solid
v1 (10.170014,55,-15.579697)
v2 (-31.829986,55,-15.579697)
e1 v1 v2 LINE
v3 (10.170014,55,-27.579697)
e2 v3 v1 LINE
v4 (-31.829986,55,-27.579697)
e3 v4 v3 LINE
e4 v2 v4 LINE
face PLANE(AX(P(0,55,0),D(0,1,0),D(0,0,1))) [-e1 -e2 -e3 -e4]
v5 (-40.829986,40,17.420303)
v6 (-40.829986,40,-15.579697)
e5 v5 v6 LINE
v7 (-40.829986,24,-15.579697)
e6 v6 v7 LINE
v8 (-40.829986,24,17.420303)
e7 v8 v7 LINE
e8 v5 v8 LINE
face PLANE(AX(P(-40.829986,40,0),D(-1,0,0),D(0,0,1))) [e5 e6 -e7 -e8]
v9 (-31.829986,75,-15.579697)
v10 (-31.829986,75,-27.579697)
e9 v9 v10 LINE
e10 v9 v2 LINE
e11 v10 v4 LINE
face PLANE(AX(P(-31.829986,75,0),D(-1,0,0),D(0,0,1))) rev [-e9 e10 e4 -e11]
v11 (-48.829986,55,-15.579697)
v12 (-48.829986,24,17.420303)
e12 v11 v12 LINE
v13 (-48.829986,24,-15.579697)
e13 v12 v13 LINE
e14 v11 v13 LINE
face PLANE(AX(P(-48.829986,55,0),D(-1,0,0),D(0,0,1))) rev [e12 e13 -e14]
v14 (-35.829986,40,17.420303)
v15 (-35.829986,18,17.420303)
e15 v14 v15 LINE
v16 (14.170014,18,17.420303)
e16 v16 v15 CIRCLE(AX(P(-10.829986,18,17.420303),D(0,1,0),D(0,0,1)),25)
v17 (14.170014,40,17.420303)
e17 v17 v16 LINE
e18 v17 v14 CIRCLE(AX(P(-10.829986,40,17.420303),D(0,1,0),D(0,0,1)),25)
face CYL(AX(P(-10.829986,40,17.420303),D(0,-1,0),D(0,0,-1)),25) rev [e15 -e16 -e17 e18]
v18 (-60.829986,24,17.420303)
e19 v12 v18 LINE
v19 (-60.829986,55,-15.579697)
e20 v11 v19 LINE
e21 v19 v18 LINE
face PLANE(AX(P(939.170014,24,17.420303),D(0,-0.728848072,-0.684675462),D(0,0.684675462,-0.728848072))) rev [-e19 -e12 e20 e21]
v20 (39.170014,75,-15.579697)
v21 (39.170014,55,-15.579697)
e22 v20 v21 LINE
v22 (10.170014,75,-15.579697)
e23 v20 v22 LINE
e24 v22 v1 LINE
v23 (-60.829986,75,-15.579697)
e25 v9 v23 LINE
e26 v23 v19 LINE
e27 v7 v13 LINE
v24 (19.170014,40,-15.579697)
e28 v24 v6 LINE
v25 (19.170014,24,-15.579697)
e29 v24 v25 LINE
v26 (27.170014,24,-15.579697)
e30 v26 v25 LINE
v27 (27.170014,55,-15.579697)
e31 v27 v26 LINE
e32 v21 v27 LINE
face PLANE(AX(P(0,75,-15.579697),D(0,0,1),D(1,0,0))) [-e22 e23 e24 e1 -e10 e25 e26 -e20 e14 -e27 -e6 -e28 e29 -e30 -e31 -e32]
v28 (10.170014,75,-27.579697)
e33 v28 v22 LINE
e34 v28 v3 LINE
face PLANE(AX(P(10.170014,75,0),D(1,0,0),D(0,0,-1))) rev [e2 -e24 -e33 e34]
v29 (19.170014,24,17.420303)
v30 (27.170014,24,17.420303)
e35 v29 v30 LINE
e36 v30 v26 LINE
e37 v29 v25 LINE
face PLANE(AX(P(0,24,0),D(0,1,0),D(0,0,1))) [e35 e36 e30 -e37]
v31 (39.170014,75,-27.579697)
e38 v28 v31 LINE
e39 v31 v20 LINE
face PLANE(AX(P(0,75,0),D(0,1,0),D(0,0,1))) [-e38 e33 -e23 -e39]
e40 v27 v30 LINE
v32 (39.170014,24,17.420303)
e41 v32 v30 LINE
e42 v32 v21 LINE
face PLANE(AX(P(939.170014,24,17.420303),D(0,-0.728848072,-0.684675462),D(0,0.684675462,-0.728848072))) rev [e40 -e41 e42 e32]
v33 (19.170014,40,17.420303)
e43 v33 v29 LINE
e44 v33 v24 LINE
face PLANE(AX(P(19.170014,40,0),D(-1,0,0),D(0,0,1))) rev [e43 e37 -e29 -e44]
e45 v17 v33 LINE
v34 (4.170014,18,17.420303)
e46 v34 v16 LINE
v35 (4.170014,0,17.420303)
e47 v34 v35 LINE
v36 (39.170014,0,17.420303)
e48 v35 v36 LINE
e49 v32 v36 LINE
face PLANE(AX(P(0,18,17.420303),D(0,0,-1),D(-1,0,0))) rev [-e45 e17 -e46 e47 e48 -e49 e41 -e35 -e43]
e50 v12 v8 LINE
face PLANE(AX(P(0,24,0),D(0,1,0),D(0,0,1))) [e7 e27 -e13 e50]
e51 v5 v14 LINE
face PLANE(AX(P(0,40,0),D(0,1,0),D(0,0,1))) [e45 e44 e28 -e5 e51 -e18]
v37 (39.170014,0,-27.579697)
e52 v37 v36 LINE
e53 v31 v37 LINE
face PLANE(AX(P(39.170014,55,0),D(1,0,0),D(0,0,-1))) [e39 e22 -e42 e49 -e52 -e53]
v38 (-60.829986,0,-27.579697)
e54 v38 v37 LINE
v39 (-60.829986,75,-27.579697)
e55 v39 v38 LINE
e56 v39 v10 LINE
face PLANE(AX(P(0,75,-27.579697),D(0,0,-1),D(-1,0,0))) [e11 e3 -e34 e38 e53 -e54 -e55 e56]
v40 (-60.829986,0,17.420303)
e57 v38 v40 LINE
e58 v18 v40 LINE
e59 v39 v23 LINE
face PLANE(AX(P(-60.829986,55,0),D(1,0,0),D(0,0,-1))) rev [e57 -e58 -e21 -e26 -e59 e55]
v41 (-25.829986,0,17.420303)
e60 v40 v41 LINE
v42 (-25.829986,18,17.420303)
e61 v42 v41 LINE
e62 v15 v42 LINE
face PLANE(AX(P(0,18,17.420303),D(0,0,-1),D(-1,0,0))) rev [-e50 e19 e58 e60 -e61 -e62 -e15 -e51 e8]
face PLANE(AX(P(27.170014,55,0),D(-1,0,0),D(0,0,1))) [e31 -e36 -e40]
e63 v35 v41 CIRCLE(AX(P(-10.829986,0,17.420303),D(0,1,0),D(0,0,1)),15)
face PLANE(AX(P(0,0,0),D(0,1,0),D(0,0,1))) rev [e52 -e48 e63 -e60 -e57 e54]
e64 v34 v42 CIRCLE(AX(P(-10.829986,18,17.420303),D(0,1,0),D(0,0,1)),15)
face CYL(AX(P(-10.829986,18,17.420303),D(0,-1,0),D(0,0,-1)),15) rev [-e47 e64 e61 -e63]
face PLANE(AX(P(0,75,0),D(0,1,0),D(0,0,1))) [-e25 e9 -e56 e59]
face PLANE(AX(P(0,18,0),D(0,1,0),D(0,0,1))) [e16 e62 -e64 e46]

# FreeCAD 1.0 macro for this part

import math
import FreeCAD as App
import Part
import Sketcher

doc = App.newDocument("Part")
body = doc.addObject("PartDesign::Body", "Body")

sketch1 = doc.addObject("Sketcher::SketchObject", "Sketch")
body.addObject(sketch1)
sketch1.AttachmentSupport = (doc.XZ_Plane, [""])
sketch1.MapMode = "FlatFace"
sketch1.addGeometry([
    Part.ArcOfCircle(Part.Circle(App.Vector(-10.829986, 17.420303, 0), App.Vector(0, 0, 1), 25), math.radians(180), math.radians(360)),
    Part.LineSegment(App.Vector(-35.829986, 17.420303, 0), App.Vector(-25.829986, 17.420303, 0)),
    Part.ArcOfCircle(Part.Circle(App.Vector(-10.829986, 17.420303, 0), App.Vector(0, 0, 1), 15), math.radians(180), math.radians(360)),
    Part.LineSegment(App.Vector(4.170014, 17.420303, 0), App.Vector(14.170014, 17.420303, 0)),
], False)
sketch1.addConstraint([
    Sketcher.Constraint("Coincident", 0, 1, 1, 1),
    Sketcher.Constraint("Coincident", 1, 2, 2, 1),
    Sketcher.Constraint("Coincident", 2, 2, 3, 1),
    Sketcher.Constraint("Coincident", 3, 2, 0, 2),
    Sketcher.Constraint("Horizontal", 1),
    Sketcher.Constraint("Horizontal", 3),
    Sketcher.Constraint("Coincident", 2, 3, 0, 3),
    Sketcher.Constraint("Horizontal", 2, 3, 0, 1),
    Sketcher.Constraint("Horizontal", 1, 2, 2, 2),
    Sketcher.Constraint("Radius", 0, 25.0),
    Sketcher.Constraint("Radius", 2, 15.0),
    Sketcher.Constraint("DistanceX", 0, 3, -1, 1, 10.829986),
    Sketcher.Constraint("DistanceY", -1, 1, 0, 3, 17.420303),
])
pad1 = doc.addObject("PartDesign::Pad", "Pad")
body.addObject(pad1)
pad1.Profile = sketch1
pad1.Length = 18
pad1.Reversed = True
body2 = doc.addObject("PartDesign::Body", "Body001")

sketch2 = doc.addObject("Sketcher::SketchObject", "Sketch001")
body2.addObject(sketch2)
sketch2.AttachmentSupport = (doc.getObject("XZ_Plane001"), [""])
sketch2.MapMode = "FlatFace"
sketch2.addGeometry([
    Part.LineSegment(App.Vector(-48.829986, -15.579697, 0), App.Vector(-48.829986, 17.420303, 0)),
    Part.LineSegment(App.Vector(-48.829986, 17.420303, 0), App.Vector(-40.829986, 17.420303, 0)),
    Part.LineSegment(App.Vector(-40.829986, 17.420303, 0), App.Vector(-40.829986, -15.579697, 0)),
    Part.LineSegment(App.Vector(-40.829986, -15.579697, 0), App.Vector(-48.829986, -15.579697, 0)),
], False)
sketch2.addConstraint([
    Sketcher.Constraint("Coincident", 0, 2, 1, 1),
    Sketcher.Constraint("Coincident", 1, 2, 2, 1),
    Sketcher.Constraint("Coincident", 2, 2, 3, 1),
    Sketcher.Constraint("Coincident", 3, 2, 0, 1),
    Sketcher.Constraint("Vertical", 0),
    Sketcher.Constraint("Horizontal", 1),
    Sketcher.Constraint("Vertical", 2),
    Sketcher.Constraint("Horizontal", 3),
    Sketcher.Constraint("DistanceX", 1, 1, 1, 2, 8.0),
    Sketcher.Constraint("DistanceY", 0, 1, 0, 2, 33.0),
    Sketcher.Constraint("DistanceX", 0, 2, -1, 1, 48.829986),
    Sketcher.Constraint("DistanceY", -1, 1, 0, 2, 17.420303),
])
pad2 = doc.addObject("PartDesign::Pad", "Pad001")
body2.addObject(pad2)
pad2.Profile = sketch2
pad2.Length = 24
pad2.Reversed = True
body3 = doc.addObject("PartDesign::Body", "Body002")

sketch3 = doc.addObject("Sketcher::SketchObject", "Sketch002")
body3.addObject(sketch3)
sketch3.AttachmentSupport = (doc.getObject("XZ_Plane002"), [""])
sketch3.MapMode = "FlatFace"
sketch3.addGeometry([
    Part.LineSegment(App.Vector(19.170014, -15.579697, 0), App.Vector(19.170014, 17.420303, 0)),
    Part.LineSegment(App.Vector(19.170014, 17.420303, 0), App.Vector(27.170014, 17.420303, 0)),
    Part.LineSegment(App.Vector(27.170014, 17.420303, 0), App.Vector(27.170014, -15.579697, 0)),
    Part.LineSegment(App.Vector(27.170014, -15.579697, 0), App.Vector(19.170014, -15.579697, 0)),
], False)
sketch3.addConstraint([
    Sketcher.Constraint("Coincident", 0, 2, 1, 1),
    Sketcher.Constraint("Coincident", 1, 2, 2, 1),
    Sketcher.Constraint("Coincident", 2, 2, 3, 1),
    Sketcher.Constraint("Coincident", 3, 2, 0, 1),
    Sketcher.Constraint("Vertical", 0),
    Sketcher.Constraint("Horizontal", 1),
    Sketcher.Constraint("Vertical", 2),
    Sketcher.Constraint("Horizontal", 3),
    Sketcher.Constraint("DistanceX", 1, 1, 1, 2, 8.0),
    Sketcher.Constraint("DistanceY", 0, 1, 0, 2, 33.0),
    Sketcher.Constraint("DistanceX", -1, 1, 0, 2, 19.170014),
    Sketcher.Constraint("DistanceY", -1, 1, 0, 2, 17.420303),
])
pad3 = doc.addObject("PartDesign::Pad", "Pad002")
body3.addObject(pad3)
pad3.Profile = sketch3
pad3.Length = 24
pad3.Reversed = True
body2.AllowCompound = True
doc.recompute()

boolean = doc.addObject("PartDesign::Boolean", "Boolean")
body2.addObject(boolean)
boolean.Type = "Fuse"
boolean.addObjects([body3])

sketch4 = doc.addObject("Sketcher::SketchObject", "Sketch003")
body2.addObject(sketch4)
sketch4.AttachmentSupport = (doc.getObject("XZ_Plane001"), [""])
sketch4.MapMode = "FlatFace"
sketch4.addGeometry([
    Part.LineSegment(App.Vector(-60.829986, -15.579697, 0), App.Vector(-60.829986, 17.420303, 0)),
    Part.LineSegment(App.Vector(-60.829986, 17.420303, 0), App.Vector(-48.829986, 17.420303, 0)),
    Part.LineSegment(App.Vector(-48.829986, 17.420303, 0), App.Vector(-48.829986, -15.579697, 0)),
    Part.LineSegment(App.Vector(-48.829986, -15.579697, 0), App.Vector(-60.829986, -15.579697, 0)),
    Part.LineSegment(App.Vector(27.170014, -15.579697, 0), App.Vector(27.170014, 17.420303, 0)),
    Part.LineSegment(App.Vector(27.170014, 17.420303, 0), App.Vector(39.170014, 17.420303, 0)),
    Part.LineSegment(App.Vector(39.170014, 17.420303, 0), App.Vector(39.170014, -15.579697, 0)),
    Part.LineSegment(App.Vector(39.170014, -15.579697, 0), App.Vector(27.170014, -15.579697, 0)),
], False)
sketch4.addConstraint([
    Sketcher.Constraint("Coincident", 0, 2, 1, 1),
    Sketcher.Constraint("Coincident", 1, 2, 2, 1),
    Sketcher.Constraint("Coincident", 2, 2, 3, 1),
    Sketcher.Constraint("Coincident", 3, 2, 0, 1),
    Sketcher.Constraint("Coincident", 4, 2, 5, 1),
    Sketcher.Constraint("Coincident", 5, 2, 6, 1),
    Sketcher.Constraint("Coincident", 6, 2, 7, 1),
    Sketcher.Constraint("Coincident", 7, 2, 4, 1),
    Sketcher.Constraint("Vertical", 0),
    Sketcher.Constraint("Horizontal", 1),
    Sketcher.Constraint("Vertical", 2),
    Sketcher.Constraint("Horizontal", 3),
    Sketcher.Constraint("Vertical", 4),
    Sketcher.Constraint("Horizontal", 5),
    Sketcher.Constraint("Vertical", 6),
    Sketcher.Constraint("Horizontal", 7),
    Sketcher.Constraint("Horizontal", 1, 2, 4, 2),
    Sketcher.Constraint("Horizontal", 3, 2, 6, 2),
    Sketcher.Constraint("Equal", 3, 5),
    Sketcher.Constraint("DistanceX", 1, 1, 1, 2, 12.0),
    Sketcher.Constraint("DistanceY", 0, 1, 0, 2, 33.0),
    Sketcher.Constraint("DistanceX", 1, 2, 4, 2, 76.0),
    Sketcher.Constraint("DistanceX", 0, 2, -1, 1, 60.829986),
    Sketcher.Constraint("DistanceY", -1, 1, 0, 2, 17.420303),
])
pad4 = doc.addObject("PartDesign::Pad", "Pad003")
body2.addObject(pad4)
pad4.Profile = sketch4
pad4.Length = 55
pad4.Reversed = True

sketch5 = doc.addObject("Sketcher::SketchObject", "Sketch004")
body2.addObject(sketch5)
sketch5.AttachmentSupport = (doc.getObject("YZ_Plane001"), [""])
sketch5.MapMode = "FlatFace"
sketch5.AttachmentOffset = App.Placement(App.Vector(0, 0, -60.829986), App.Rotation())
sketch5.addGeometry([
    Part.LineSegment(App.Vector(24, 17.420303, 0), App.Vector(55, 17.420303, 0)),
    Part.LineSegment(App.Vector(55, 17.420303, 0), App.Vector(55, -15.579697, 0)),
    Part.LineSegment(App.Vector(55, -15.579697, 0), App.Vector(24, 17.420303, 0)),
], False)
sketch5.addConstraint([
    Sketcher.Constraint("Coincident", 0, 2, 1, 1),
    Sketcher.Constraint("Coincident", 1, 2, 2, 1),
    Sketcher.Constraint("Coincident", 2, 2, 0, 1),
    Sketcher.Constraint("Horizontal", 0),
    Sketcher.Constraint("Vertical", 1),
    Sketcher.Constraint("DistanceX", 0, 1, 0, 2, 31.0),
    Sketcher.Constraint("DistanceY", 1, 2, 1, 1, 33.0),
    Sketcher.Constraint("DistanceX", -1, 1, 0, 2, 55.0),
    Sketcher.Constraint("DistanceY", -1, 1, 0, 2, 17.420303),
])
pocket1 = doc.addObject("PartDesign::Pocket", "Pocket")
body2.addObject(pocket1)
pocket1.Profile = sketch5
pocket1.Length = 1000
pocket1.Reversed = True

sketch6 = doc.addObject("Sketcher::SketchObject", "Sketch005")
body2.addObject(sketch6)
sketch6.AttachmentSupport = (doc.getObject("XZ_Plane001"), [""])
sketch6.MapMode = "FlatFace"
sketch6.addGeometry([
    Part.LineSegment(App.Vector(-60.829986, -27.579697, 0), App.Vector(-60.829986, -15.579697, 0)),
    Part.LineSegment(App.Vector(-60.829986, -15.579697, 0), App.Vector(-31.829986, -15.579697, 0)),
    Part.LineSegment(App.Vector(-31.829986, -15.579697, 0), App.Vector(-31.829986, -27.579697, 0)),
    Part.LineSegment(App.Vector(-31.829986, -27.579697, 0), App.Vector(-60.829986, -27.579697, 0)),
    Part.LineSegment(App.Vector(39.170014, -27.579697, 0), App.Vector(10.170014, -27.579697, 0)),
    Part.LineSegment(App.Vector(10.170014, -27.579697, 0), App.Vector(10.170014, -15.579697, 0)),
    Part.LineSegment(App.Vector(10.170014, -15.579697, 0), App.Vector(39.170014, -15.579697, 0)),
    Part.LineSegment(App.Vector(39.170014, -15.579697, 0), App.Vector(39.170014, -27.579697, 0)),
], False)
sketch6.addConstraint([
    Sketcher.Constraint("Coincident", 0, 2, 1, 1),
    Sketcher.Constraint("Coincident", 1, 2, 2, 1),
    Sketcher.Constraint("Coincident", 2, 2, 3, 1),
    Sketcher.Constraint("Coincident", 3, 2, 0, 1),
    Sketcher.Constraint("Coincident", 4, 2, 5, 1),
    Sketcher.Constraint("Coincident", 5, 2, 6, 1),
    Sketcher.Constraint("Coincident", 6, 2, 7, 1),
    Sketcher.Constraint("Coincident", 7, 2, 4, 1),
    Sketcher.Constraint("Vertical", 0),
    Sketcher.Constraint("Horizontal", 1),
    Sketcher.Constraint("Vertical", 2),
    Sketcher.Constraint("Horizontal", 3),
    Sketcher.Constraint("Horizontal", 4),
    Sketcher.Constraint("Vertical", 5),
    Sketcher.Constraint("Horizontal", 6),
    Sketcher.Constraint("Vertical", 7),
    Sketcher.Constraint("Horizontal", 3, 2, 4, 2),
    Sketcher.Constraint("Horizontal", 1, 2, 5, 2),
    Sketcher.Constraint("Equal", 3, 4),
    Sketcher.Constraint("DistanceX", 1, 1, 1, 2, 29.0),
    Sketcher.Constraint("DistanceY", 0, 1, 0, 2, 12.0),
    Sketcher.Constraint("DistanceX", 2, 2, 4, 2, 42.0),
    Sketcher.Constraint("DistanceX", 0, 2, -1, 1, 60.829986),
    Sketcher.Constraint("DistanceY", 0, 2, -1, 1, 15.579697),
])
pad5 = doc.addObject("PartDesign::Pad", "Pad004")
body2.addObject(pad5)
pad5.Profile = sketch6
pad5.Length = 75
pad5.Reversed = True

sketch7 = doc.addObject("Sketcher::SketchObject", "Sketch006")
body2.addObject(sketch7)
sketch7.AttachmentSupport = (doc.getObject("XZ_Plane001"), [""])
sketch7.MapMode = "FlatFace"
sketch7.addGeometry([
    Part.LineSegment(App.Vector(-31.829986, -27.579697, 0), App.Vector(-31.829986, -15.579697, 0)),
    Part.LineSegment(App.Vector(-31.829986, -15.579697, 0), App.Vector(10.170014, -15.579697, 0)),
    Part.LineSegment(App.Vector(10.170014, -15.579697, 0), App.Vector(10.170014, -27.579697, 0)),
    Part.LineSegment(App.Vector(10.170014, -27.579697, 0), App.Vector(-31.829986, -27.579697, 0)),
], False)
sketch7.addConstraint([
    Sketcher.Constraint("Coincident", 0, 2, 1, 1),
    Sketcher.Constraint("Coincident", 1, 2, 2, 1),
    Sketcher.Constraint("Coincident", 2, 2, 3, 1),
    Sketcher.Constraint("Coincident", 3, 2, 0, 1),
    Sketcher.Constraint("Vertical", 0),
    Sketcher.Constraint("Horizontal", 1),
    Sketcher.Constraint("Vertical", 2),
    Sketcher.Constraint("Horizontal", 3),
    Sketcher.Constraint("DistanceX", 1, 1, 1, 2, 42.0),
    Sketcher.Constraint("DistanceY", 0, 1, 0, 2, 12.0),
    Sketcher.Constraint("DistanceX", 0, 2, -1, 1, 31.829986),
    Sketcher.Constraint("DistanceY", 0, 2, -1, 1, 15.579697),
])
pad6 = doc.addObject("PartDesign::Pad", "Pad005")
body2.addObject(pad6)
pad6.Profile = sketch7
pad6.Length = 55
pad6.Reversed = True
body.AllowCompound = True
doc.recompute()

boolean2 = doc.addObject("PartDesign::Boolean", "Boolean001")
body.addObject(boolean2)
boolean2.Type = "Fuse"
boolean2.addObjects([body2])

sketch8 = doc.addObject("Sketcher::SketchObject", "Sketch007")
body.addObject(sketch8)
sketch8.AttachmentSupport = (doc.XZ_Plane, [""])
sketch8.MapMode = "FlatFace"
sketch8.addGeometry([
    Part.LineSegment(App.Vector(-40.829986, -15.579697, 0), App.Vector(-40.829986, 17.420303, 0)),
    Part.LineSegment(App.Vector(-40.829986, 17.420303, 0), App.Vector(-35.829986, 17.420303, 0)),
    Part.ArcOfCircle(Part.Circle(App.Vector(-10.829986, 17.420303, 0), App.Vector(0, 0, 1), 25), math.radians(180), math.radians(360)),
    Part.LineSegment(App.Vector(14.170014, 17.420303, 0), App.Vector(19.170014, 17.420303, 0)),
    Part.LineSegment(App.Vector(19.170014, 17.420303, 0), App.Vector(19.170014, -15.579697, 0)),
    Part.LineSegment(App.Vector(19.170014, -15.579697, 0), App.Vector(-40.829986, -15.579697, 0)),
], False)
sketch8.addConstraint([
    Sketcher.Constraint("Coincident", 0, 2, 1, 1),
    Sketcher.Constraint("Coincident", 1, 2, 2, 1),
    Sketcher.Constraint("Coincident", 2, 2, 3, 1),
    Sketcher.Constraint("Coincident", 3, 2, 4, 1),
    Sketcher.Constraint("Coincident", 4, 2, 5, 1),
    Sketcher.Constraint("Coincident", 5, 2, 0, 1),
    Sketcher.Constraint("Vertical", 0),
    Sketcher.Constraint("Horizontal", 1),
    Sketcher.Constraint("Horizontal", 3),
    Sketcher.Constraint("Vertical", 4),
    Sketcher.Constraint("Horizontal", 5),
    Sketcher.Constraint("Horizontal", 2, 3, 0, 2),
    Sketcher.Constraint("Horizontal", 1, 2, 2, 2),
    Sketcher.Constraint("Equal", 1, 3),
    Sketcher.Constraint("Radius", 2, 25.0),
    Sketcher.Constraint("DistanceX", 1, 1, 1, 2, 5.0),
    Sketcher.Constraint("DistanceY", 0, 1, 0, 2, 33.0),
    Sketcher.Constraint("DistanceX", 2, 3, -1, 1, 10.829986),
    Sketcher.Constraint("DistanceY", -1, 1, 2, 3, 17.420303),
])
pad7 = doc.addObject("PartDesign::Pad", "Pad006")
body.addObject(pad7)
pad7.Profile = sketch8
pad7.Length = 40
pad7.Reversed = True

doc.recompute()
